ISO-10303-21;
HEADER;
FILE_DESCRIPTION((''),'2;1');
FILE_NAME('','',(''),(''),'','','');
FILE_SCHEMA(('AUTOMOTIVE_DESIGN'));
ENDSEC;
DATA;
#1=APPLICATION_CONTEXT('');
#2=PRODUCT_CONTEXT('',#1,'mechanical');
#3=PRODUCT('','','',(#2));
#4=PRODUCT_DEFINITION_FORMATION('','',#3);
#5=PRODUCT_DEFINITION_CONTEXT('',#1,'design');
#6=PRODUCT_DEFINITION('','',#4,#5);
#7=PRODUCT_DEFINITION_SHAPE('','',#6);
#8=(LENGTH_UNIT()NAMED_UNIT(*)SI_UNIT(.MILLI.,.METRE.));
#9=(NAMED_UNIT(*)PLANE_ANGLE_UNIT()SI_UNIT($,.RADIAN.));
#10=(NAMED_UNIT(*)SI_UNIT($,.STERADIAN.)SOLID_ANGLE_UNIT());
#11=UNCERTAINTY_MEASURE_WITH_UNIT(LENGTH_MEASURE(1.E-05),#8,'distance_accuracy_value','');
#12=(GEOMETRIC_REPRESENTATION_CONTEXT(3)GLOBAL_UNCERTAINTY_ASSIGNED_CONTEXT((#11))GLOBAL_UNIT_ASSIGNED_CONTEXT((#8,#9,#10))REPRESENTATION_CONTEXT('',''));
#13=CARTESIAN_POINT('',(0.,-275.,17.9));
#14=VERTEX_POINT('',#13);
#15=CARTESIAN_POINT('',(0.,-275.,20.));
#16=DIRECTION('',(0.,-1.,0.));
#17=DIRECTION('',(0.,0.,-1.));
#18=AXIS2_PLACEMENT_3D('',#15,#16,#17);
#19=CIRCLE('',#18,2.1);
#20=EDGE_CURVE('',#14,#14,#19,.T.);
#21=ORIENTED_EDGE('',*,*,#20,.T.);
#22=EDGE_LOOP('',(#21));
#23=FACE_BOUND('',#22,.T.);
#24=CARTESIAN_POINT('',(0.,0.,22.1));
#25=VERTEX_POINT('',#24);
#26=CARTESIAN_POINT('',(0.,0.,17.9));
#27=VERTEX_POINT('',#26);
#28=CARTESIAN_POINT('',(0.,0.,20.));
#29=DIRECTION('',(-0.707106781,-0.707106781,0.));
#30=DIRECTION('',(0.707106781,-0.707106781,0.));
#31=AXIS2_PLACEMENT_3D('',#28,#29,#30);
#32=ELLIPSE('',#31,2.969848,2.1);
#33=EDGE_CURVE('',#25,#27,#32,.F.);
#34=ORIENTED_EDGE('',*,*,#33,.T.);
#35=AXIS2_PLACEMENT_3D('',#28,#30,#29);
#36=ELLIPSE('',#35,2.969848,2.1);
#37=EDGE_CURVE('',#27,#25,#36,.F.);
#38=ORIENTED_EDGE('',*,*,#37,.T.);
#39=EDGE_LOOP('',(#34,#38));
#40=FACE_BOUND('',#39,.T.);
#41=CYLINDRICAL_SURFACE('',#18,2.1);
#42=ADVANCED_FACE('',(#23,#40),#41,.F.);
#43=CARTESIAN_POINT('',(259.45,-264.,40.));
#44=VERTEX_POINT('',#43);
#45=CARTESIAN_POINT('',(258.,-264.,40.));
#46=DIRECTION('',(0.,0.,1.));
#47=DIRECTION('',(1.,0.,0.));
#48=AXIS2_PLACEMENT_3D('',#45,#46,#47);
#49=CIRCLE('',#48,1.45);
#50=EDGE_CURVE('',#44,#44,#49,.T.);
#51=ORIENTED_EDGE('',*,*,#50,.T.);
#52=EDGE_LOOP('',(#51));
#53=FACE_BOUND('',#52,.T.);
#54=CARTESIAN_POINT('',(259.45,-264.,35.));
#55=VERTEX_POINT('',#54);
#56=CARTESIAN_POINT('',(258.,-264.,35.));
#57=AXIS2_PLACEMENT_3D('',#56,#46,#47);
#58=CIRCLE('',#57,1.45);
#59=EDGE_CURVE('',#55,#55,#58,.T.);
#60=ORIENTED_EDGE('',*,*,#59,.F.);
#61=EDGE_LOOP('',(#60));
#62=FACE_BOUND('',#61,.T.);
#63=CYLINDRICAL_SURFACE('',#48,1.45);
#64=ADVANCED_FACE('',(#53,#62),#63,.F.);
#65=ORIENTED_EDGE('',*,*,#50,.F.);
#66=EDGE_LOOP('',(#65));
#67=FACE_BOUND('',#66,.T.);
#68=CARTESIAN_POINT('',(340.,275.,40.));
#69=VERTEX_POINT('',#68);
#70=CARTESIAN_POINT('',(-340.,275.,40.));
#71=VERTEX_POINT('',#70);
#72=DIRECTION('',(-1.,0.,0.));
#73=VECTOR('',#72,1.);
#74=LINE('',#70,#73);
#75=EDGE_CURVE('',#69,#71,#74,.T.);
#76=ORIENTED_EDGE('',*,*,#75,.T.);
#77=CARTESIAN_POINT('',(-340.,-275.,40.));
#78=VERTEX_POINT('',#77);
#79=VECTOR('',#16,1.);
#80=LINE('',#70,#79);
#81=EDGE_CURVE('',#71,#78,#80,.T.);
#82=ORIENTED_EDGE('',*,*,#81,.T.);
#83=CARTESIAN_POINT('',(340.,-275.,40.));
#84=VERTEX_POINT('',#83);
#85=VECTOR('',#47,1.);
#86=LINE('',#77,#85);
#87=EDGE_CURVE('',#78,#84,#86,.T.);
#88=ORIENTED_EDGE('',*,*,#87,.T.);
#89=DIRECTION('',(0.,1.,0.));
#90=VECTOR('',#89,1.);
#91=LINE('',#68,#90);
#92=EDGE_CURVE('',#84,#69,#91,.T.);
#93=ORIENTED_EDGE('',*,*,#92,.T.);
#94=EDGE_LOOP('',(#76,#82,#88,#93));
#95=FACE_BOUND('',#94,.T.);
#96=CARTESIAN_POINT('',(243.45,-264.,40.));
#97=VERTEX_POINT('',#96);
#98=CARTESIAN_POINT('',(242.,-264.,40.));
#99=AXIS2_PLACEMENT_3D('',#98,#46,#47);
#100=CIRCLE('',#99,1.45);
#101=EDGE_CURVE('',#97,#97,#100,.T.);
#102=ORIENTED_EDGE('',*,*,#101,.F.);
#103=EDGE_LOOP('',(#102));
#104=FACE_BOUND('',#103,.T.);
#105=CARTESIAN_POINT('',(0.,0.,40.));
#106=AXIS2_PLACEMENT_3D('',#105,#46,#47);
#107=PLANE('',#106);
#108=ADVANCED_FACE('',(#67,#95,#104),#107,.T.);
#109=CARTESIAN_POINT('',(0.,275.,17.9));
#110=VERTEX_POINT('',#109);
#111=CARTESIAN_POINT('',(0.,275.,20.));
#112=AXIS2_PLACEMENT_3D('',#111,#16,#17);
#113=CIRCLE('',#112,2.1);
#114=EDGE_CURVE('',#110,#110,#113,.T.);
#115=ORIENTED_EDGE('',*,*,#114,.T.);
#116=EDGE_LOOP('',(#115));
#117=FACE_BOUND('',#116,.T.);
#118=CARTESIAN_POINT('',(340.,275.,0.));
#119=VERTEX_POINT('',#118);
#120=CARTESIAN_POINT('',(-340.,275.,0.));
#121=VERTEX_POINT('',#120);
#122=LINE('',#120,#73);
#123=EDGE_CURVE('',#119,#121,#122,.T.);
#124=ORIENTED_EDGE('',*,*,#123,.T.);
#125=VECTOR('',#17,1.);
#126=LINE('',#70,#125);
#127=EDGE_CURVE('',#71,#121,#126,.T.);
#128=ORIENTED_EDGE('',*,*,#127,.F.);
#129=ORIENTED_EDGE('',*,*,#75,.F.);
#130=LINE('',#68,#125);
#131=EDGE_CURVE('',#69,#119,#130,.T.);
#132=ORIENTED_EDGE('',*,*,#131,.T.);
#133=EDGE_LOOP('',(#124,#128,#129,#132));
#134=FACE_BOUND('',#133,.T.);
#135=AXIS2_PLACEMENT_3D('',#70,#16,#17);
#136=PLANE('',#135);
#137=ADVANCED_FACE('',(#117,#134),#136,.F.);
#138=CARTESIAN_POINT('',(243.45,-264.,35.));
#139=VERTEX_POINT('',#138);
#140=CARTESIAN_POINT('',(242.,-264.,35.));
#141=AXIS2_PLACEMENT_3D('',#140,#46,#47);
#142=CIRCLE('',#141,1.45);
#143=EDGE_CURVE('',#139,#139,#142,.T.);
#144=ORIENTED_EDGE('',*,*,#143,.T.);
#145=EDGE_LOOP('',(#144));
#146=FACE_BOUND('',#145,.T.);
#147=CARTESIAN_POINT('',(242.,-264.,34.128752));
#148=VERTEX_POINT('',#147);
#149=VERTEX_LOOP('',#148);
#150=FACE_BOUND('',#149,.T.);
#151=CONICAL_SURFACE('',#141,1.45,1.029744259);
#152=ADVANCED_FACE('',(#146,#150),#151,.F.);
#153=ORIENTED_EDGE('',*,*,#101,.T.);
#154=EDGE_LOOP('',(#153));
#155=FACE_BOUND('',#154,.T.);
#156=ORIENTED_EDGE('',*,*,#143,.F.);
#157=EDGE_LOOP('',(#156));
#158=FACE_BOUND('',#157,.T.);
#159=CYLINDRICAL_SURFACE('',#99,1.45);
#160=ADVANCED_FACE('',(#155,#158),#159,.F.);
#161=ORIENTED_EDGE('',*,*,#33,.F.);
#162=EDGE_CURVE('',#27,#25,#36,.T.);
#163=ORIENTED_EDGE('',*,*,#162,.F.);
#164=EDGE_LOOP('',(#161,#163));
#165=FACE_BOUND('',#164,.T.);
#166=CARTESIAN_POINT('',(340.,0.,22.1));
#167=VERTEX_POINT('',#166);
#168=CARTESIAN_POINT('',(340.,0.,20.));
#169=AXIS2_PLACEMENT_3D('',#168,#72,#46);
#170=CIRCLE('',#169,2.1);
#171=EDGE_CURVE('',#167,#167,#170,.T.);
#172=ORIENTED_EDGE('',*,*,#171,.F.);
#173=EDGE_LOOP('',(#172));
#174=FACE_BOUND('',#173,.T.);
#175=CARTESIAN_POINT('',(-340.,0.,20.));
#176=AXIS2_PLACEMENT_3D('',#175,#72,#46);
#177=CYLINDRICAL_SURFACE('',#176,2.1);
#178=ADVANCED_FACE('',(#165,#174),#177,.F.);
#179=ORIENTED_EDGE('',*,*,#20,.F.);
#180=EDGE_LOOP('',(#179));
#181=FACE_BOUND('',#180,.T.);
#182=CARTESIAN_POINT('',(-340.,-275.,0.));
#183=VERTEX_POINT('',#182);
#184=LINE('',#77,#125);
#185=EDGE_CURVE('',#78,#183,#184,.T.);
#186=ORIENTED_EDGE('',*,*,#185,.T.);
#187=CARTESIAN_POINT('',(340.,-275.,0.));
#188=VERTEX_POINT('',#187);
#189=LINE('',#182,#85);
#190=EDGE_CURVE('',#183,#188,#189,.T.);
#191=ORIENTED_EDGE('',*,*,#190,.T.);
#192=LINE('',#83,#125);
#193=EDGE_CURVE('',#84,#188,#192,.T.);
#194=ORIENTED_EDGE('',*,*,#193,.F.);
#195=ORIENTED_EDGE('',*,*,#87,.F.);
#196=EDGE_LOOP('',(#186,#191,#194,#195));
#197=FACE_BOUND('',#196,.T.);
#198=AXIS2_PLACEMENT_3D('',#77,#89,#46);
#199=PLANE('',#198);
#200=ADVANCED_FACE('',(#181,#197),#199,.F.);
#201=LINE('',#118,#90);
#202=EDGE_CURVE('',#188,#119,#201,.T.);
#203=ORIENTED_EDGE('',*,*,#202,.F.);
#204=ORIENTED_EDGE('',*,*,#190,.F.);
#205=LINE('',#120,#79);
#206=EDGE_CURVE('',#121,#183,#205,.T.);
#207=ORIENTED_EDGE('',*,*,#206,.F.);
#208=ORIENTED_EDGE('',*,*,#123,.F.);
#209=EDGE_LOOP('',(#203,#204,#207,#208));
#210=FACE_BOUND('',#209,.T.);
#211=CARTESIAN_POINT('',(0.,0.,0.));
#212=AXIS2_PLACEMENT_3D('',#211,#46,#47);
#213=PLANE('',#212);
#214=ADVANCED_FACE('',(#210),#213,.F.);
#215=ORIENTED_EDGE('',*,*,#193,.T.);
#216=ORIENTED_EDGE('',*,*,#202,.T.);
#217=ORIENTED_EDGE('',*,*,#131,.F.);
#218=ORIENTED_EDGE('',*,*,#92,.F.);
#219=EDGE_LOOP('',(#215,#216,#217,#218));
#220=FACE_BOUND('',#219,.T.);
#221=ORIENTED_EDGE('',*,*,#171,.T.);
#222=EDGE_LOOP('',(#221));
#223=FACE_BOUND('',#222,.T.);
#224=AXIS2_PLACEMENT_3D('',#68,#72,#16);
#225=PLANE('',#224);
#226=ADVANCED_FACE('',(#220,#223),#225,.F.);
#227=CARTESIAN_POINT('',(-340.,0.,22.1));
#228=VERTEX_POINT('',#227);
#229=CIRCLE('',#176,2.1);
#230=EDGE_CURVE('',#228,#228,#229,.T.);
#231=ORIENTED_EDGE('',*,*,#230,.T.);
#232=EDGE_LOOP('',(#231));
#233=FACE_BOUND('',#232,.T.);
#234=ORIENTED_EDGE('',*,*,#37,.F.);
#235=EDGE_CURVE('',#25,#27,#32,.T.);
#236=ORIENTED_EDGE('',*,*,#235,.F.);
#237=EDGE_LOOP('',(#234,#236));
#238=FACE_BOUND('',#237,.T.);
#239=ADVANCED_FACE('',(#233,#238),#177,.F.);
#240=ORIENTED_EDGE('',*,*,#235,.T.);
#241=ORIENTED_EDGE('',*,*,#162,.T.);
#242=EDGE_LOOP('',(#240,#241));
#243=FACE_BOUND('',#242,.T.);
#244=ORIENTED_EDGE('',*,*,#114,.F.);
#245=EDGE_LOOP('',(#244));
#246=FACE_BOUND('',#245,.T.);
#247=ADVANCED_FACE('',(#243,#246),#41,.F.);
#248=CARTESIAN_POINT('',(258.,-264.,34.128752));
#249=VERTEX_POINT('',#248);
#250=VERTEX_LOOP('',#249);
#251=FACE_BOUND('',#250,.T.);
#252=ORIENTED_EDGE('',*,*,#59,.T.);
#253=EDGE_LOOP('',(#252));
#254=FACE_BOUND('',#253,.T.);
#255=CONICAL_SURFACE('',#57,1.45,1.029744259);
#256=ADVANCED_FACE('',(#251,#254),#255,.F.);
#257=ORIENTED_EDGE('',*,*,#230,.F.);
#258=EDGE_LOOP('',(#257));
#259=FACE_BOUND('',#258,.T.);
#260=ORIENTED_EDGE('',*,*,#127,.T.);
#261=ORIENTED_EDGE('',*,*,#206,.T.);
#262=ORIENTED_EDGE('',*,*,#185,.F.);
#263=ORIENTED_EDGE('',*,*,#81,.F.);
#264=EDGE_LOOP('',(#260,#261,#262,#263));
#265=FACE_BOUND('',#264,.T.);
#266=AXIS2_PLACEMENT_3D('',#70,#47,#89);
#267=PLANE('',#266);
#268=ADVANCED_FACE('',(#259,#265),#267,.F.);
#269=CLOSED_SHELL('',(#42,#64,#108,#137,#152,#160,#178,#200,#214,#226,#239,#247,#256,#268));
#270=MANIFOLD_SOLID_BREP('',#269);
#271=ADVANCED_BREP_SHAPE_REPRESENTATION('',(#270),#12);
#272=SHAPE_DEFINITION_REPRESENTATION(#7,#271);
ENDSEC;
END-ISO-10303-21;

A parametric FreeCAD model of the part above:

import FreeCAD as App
import Part
import Sketcher

V = App.Vector
Q = App.Units.Quantity


def add_polygon(sketch, points):
    """Adds a closed chain of lines whose ends are joined by coincident constraints."""
    first, n = sketch.GeometryCount, len(points)
    for a, b in zip(points, points[1:] + points[:1]):
        sketch.addGeometry(Part.LineSegment(App.Vector(*a, 0), App.Vector(*b, 0)), False)
    for i in range(n):
        sketch.addConstraint(Sketcher.Constraint("Coincident", first + i, 2, first + (i + 1) % n, 1))

doc = App.newDocument("Part")
body = doc.addObject("PartDesign::Body", "Body")

# Sketch on XY plane
sketch1 = doc.addObject("Sketcher::SketchObject", "Sketch")
body.addObject(sketch1)
sketch1.AttachmentSupport = (doc.XY_Plane, [""])
sketch1.MapMode = "FlatFace"
add_polygon(sketch1, [(-340, 275), (-340, -275), (340, -275), (340, 275)])  # lines 0-3
sketch1.addConstraint([
    Sketcher.Constraint("Vertical", 0),
    Sketcher.Constraint("Horizontal", 1),
    Sketcher.Constraint("Vertical", 2),
    Sketcher.Constraint("Horizontal", 3),
    Sketcher.Constraint("Symmetric", 0, 2, 2, 2, -1, 1),
    Sketcher.Constraint("DistanceX", 1, 1, 1, 2, Q("680 mm")),
    Sketcher.Constraint("DistanceY", 0, 2, 0, 1, Q("550 mm")),
])
pad1 = doc.addObject("PartDesign::Pad", "Pad")
body.addObject(pad1)
pad1.Profile = sketch1
pad1.Length = 40

# Sketch on XZ plane
sketch2 = doc.addObject("Sketcher::SketchObject", "Sketch001")
body.addObject(sketch2)
sketch2.AttachmentSupport = (doc.XZ_Plane, [""])
sketch2.MapMode = "FlatFace"
sketch2.AttachmentOffset = App.Placement(V(0, 0, 275), App.Rotation())
sketch2.addGeometry(Part.Circle(V(0, 20, 0), V(0, 0, 1), 2.1), False)
sketch2.addConstraint([
    Sketcher.Constraint("PointOnObject", 0, 3, -2),
    Sketcher.Constraint("Diameter", 0, Q("4.2 mm")),
    Sketcher.Constraint("DistanceY", -1, 1, 0, 3, Q("20 mm")),
])
doc.recompute()
hole = doc.addObject("PartDesign::Hole", "Hole")
body.addObject(hole)
hole.Profile = sketch2
hole.ThreadType = "None"
hole.Diameter = 4.2
hole.DepthType = "ThroughAll"

# Sketch on YZ plane
sketch3 = doc.addObject("Sketcher::SketchObject", "Sketch002")
body.addObject(sketch3)
sketch3.AttachmentSupport = (doc.YZ_Plane, [""])
sketch3.MapMode = "FlatFace"
sketch3.AttachmentOffset = App.Placement(V(0, 0, -340), App.Rotation())
sketch3.addGeometry(Part.Circle(V(0, 20, 0), V(0, 0, 1), 2.1), False)
sketch3.addConstraint([
    Sketcher.Constraint("PointOnObject", 0, 3, -2),
    Sketcher.Constraint("Diameter", 0, Q("4.2 mm")),
    Sketcher.Constraint("DistanceY", -1, 1, 0, 3, Q("20 mm")),
])
doc.recompute()
hole2 = doc.addObject("PartDesign::Hole", "Hole001")
body.addObject(hole2)
hole2.Profile = sketch3
hole2.ThreadType = "None"
hole2.Diameter = 4.2
hole2.DepthType = "ThroughAll"
hole2.Reversed = True

# Sketch on XY plane
sketch4 = doc.addObject("Sketcher::SketchObject", "Sketch003")
body.addObject(sketch4)
sketch4.AttachmentSupport = (doc.XY_Plane, [""])
sketch4.MapMode = "FlatFace"
sketch4.AttachmentOffset = App.Placement(V(0, 0, 40), App.Rotation())
sketch4.addGeometry([
    Part.Circle(V(258, -264, 0), V(0, 0, 1), 1.45),
    Part.Circle(V(242, -264, 0), V(0, 0, 1), 1.45),
], False)
sketch4.addConstraint([
    Sketcher.Constraint("Equal", 0, 1),
    Sketcher.Constraint("Horizontal", 0, 3, 1, 3),
    Sketcher.Constraint("Diameter", 0, Q("2.9 mm")),
    Sketcher.Constraint("DistanceX", -1, 1, 0, 3, Q("258 mm")),
    Sketcher.Constraint("DistanceY", 0, 3, -1, 1, Q("264 mm")),
    Sketcher.Constraint("DistanceX", -1, 1, 1, 3, Q("242 mm")),
])
doc.recompute()
hole3 = doc.addObject("PartDesign::Hole", "Hole002")
body.addObject(hole3)
hole3.Profile = sketch4
hole3.ThreadType = "None"
hole3.Diameter = 2.9
hole3.DepthType = "Dimension"
hole3.Depth = 5
hole3.DrillPoint = "Angled"
hole3.DrillPointAngle = 118

doc.recompute()
